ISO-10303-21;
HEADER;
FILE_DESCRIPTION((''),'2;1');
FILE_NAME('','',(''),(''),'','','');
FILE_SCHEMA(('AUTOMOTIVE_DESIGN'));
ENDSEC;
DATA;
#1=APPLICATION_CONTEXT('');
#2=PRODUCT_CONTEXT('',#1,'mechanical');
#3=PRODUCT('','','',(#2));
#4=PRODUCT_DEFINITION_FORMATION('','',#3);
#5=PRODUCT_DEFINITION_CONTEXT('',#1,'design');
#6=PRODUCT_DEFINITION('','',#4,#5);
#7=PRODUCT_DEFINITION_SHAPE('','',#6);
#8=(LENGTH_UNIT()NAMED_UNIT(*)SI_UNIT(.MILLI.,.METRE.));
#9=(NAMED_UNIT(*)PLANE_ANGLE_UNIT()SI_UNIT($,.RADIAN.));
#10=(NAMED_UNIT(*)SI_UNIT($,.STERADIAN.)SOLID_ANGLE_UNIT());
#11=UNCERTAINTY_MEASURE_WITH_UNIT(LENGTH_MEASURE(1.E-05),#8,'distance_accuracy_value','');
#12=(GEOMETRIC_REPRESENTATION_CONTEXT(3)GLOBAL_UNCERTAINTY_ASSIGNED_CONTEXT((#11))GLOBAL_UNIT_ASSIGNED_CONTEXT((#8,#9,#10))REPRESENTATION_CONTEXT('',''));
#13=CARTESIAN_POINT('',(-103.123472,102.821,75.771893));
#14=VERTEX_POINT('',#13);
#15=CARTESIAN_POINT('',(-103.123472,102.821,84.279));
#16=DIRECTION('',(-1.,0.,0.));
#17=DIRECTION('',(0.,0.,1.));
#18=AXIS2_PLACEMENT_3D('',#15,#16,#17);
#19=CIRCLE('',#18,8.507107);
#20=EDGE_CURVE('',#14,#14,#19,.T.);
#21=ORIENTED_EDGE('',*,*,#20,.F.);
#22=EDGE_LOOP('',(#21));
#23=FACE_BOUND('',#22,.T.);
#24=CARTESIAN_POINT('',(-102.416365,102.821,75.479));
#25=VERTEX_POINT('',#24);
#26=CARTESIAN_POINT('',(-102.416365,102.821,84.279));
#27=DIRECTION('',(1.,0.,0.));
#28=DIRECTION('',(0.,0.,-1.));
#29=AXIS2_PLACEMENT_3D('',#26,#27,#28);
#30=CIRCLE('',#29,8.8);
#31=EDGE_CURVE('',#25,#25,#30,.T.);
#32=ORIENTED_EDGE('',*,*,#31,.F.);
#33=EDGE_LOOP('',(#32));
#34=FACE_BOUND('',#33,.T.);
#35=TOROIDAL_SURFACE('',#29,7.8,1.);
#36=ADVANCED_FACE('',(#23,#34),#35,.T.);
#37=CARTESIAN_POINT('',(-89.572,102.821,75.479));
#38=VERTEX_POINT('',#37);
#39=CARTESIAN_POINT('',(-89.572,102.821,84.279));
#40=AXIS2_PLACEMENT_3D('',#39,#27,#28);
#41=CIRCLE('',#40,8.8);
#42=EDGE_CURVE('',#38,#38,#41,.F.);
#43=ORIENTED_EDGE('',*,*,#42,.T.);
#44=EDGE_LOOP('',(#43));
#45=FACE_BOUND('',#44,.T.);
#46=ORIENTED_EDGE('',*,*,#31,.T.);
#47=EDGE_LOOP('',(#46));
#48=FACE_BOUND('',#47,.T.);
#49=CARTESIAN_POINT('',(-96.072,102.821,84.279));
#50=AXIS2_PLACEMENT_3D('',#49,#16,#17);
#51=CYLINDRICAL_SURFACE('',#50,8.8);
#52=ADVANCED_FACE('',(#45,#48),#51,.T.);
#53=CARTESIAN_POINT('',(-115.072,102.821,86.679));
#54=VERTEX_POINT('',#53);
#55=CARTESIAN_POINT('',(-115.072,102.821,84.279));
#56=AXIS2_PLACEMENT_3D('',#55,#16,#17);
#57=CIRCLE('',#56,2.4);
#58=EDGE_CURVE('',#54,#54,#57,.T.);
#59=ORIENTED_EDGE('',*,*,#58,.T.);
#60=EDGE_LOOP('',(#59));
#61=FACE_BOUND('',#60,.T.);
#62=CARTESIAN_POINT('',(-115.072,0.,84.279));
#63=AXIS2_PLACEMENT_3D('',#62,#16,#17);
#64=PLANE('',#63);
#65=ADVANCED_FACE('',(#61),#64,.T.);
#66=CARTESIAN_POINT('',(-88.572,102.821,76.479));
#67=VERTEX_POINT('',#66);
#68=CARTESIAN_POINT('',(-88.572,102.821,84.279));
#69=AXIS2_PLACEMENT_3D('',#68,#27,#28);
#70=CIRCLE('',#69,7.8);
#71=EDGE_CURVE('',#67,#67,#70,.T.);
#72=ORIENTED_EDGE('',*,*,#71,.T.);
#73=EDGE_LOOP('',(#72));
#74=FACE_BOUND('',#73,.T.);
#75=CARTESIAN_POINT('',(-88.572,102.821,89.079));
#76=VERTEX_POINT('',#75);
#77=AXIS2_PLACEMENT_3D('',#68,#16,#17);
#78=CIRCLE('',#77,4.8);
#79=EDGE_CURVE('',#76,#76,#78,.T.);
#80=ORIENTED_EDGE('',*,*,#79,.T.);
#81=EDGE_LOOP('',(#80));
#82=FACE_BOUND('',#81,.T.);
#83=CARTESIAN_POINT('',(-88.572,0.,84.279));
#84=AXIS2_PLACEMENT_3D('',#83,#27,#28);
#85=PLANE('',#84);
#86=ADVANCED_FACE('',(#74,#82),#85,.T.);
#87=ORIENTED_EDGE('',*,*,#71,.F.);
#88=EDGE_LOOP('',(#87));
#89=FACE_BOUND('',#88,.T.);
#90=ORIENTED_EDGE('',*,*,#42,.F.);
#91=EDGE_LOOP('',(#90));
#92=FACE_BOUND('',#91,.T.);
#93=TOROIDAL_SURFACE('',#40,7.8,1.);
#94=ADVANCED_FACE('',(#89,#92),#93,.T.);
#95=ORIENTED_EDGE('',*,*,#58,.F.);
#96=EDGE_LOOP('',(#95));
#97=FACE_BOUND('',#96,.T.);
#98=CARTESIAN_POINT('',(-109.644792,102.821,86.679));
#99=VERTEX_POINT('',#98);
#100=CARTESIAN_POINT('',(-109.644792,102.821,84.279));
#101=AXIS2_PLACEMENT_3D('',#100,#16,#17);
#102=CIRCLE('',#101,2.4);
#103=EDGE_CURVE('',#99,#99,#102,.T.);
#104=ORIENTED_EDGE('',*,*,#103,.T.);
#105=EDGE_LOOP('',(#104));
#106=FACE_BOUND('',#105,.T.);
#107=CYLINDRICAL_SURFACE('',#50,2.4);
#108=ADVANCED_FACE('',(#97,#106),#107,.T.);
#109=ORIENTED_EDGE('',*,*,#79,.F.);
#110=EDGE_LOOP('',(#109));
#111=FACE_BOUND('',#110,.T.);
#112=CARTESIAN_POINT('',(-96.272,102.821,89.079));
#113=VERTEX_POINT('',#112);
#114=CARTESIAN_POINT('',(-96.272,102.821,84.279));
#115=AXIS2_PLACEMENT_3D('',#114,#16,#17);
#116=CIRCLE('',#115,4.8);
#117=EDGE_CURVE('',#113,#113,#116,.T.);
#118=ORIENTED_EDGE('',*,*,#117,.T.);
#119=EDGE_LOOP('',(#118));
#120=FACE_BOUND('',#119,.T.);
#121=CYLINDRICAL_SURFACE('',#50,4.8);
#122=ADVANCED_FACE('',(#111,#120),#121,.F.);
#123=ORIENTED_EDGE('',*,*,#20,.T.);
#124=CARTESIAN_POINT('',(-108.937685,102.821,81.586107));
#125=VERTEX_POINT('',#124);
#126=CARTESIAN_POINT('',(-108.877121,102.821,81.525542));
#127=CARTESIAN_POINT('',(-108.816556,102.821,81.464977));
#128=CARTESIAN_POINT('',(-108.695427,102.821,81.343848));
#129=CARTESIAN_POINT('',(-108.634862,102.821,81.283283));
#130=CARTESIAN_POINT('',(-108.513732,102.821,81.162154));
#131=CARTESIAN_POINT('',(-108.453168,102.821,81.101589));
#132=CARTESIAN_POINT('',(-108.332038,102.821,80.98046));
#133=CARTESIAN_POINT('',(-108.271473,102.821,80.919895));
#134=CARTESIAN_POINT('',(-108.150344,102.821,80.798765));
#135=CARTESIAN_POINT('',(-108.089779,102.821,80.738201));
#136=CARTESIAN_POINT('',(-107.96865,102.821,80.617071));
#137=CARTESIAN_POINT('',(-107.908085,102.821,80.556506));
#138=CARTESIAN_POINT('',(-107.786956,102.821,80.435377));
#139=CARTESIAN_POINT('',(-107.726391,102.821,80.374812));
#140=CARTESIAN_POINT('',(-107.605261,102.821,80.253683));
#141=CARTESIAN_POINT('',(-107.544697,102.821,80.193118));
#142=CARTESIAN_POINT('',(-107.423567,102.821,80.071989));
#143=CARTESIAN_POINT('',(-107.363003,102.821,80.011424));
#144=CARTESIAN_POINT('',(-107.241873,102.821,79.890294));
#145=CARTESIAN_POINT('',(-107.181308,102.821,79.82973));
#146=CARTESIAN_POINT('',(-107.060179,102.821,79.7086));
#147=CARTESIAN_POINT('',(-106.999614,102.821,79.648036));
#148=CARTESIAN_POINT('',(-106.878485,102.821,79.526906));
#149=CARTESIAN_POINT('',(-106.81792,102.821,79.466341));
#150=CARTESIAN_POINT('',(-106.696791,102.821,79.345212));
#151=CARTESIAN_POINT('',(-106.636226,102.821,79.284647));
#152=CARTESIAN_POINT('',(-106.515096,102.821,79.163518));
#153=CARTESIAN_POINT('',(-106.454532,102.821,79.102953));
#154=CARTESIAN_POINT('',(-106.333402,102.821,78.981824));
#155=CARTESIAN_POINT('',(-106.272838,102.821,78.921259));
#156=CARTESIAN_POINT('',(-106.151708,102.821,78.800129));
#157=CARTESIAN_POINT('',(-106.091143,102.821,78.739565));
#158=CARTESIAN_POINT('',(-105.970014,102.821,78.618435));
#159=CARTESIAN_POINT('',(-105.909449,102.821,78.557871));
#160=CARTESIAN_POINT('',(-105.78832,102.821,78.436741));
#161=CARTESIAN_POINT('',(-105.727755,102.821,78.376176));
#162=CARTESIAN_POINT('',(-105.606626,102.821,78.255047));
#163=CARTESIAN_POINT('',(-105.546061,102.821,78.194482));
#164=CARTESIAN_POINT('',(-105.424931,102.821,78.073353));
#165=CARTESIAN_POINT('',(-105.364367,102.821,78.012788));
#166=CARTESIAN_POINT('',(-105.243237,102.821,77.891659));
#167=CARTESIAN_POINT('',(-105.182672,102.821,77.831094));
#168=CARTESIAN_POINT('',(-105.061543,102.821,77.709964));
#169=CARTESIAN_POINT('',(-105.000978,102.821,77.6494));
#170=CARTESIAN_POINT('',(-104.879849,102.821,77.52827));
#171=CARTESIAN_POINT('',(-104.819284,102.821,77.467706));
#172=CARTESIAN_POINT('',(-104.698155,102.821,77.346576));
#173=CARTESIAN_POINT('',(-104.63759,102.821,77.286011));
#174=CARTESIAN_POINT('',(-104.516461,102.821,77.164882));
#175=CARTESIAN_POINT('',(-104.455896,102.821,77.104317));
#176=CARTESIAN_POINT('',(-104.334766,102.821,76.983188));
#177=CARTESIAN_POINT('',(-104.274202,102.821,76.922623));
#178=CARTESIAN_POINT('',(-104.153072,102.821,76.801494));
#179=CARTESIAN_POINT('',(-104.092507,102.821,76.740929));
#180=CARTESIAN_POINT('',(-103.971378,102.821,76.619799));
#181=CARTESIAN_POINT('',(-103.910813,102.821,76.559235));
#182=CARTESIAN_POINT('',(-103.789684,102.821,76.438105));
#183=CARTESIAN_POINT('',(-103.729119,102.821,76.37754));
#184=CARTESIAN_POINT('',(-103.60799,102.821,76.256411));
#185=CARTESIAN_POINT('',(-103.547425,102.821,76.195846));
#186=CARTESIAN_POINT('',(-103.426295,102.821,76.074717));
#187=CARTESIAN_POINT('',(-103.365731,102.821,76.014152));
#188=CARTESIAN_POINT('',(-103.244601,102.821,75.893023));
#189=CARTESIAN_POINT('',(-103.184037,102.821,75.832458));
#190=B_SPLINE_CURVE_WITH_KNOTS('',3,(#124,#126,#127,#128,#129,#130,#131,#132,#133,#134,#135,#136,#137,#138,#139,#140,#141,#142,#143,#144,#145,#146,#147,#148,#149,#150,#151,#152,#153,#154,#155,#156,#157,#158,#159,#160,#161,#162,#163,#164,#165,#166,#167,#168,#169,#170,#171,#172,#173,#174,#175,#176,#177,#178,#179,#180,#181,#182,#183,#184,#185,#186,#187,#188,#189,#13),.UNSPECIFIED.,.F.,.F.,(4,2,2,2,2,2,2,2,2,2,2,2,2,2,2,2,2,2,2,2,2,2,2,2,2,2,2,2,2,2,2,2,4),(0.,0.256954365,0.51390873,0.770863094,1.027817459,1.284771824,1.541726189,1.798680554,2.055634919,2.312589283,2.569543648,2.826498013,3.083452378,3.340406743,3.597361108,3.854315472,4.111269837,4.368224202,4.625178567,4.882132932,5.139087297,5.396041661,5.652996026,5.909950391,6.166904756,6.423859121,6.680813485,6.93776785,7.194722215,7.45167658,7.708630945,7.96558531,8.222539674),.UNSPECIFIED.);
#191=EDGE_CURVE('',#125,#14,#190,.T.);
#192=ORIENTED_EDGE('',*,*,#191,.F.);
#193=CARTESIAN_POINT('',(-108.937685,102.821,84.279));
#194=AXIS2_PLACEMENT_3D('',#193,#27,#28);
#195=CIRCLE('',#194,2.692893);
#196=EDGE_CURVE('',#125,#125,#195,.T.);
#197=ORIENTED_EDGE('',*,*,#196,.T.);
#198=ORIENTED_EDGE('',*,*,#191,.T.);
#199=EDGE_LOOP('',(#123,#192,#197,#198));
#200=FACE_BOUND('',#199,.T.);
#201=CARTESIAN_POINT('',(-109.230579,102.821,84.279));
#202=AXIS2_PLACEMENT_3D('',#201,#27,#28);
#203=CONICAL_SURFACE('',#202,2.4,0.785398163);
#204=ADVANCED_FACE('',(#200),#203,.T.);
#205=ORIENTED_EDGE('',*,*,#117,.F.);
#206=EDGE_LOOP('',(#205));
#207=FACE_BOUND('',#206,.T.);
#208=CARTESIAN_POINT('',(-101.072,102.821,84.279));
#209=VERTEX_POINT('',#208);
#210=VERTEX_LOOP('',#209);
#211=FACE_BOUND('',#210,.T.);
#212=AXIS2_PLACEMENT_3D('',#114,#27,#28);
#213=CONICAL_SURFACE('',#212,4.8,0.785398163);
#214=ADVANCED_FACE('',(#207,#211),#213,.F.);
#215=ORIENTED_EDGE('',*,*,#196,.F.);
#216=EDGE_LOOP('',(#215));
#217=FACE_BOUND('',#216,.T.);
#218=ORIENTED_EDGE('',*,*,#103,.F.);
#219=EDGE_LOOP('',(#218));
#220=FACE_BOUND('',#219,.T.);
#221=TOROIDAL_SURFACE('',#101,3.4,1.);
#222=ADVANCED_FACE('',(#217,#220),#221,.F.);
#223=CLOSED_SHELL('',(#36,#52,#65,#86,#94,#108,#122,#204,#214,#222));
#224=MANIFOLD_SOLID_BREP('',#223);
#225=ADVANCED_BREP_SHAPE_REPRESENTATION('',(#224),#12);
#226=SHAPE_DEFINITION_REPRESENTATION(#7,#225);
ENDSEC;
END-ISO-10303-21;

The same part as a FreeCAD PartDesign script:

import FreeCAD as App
import Part
import Sketcher

V = App.Vector
Q = App.Units.Quantity


def edges_at(feature, points):
    """Names of the edges that pass closest to the given points."""
    edges = feature.Shape.Edges
    near = lambda p: min(range(len(edges)), key=lambda i: edges[i].distToShape(Part.Vertex(*p))[0])
    return sorted({f"Edge{near(p) + 1}" for p in points})

doc = App.newDocument("Part")
params = doc.addObject("Spreadsheet::Sheet", "Params")
for row, (alias, value) in enumerate([
    ("sketch1_width", "14 mm"),
    ("sketch1_height", "4 mm"),
    ("sketch1_width2", "7.7 mm"),
    ("sketch1_width3", "26.5 mm"),
    ("sketch1_height2", "2.4 mm"),
    ("revolution_angle", "360 deg"),
    ("fillet_radius", "1 mm"),
], start=1):
    params.set(f"A{row}", alias)
    params.set(f"B{row}", "=" + value)
    params.setAlias(f"B{row}", alias)

body = doc.addObject("PartDesign::Body", "Body")

# Sketch on XY plane
sketch1 = doc.addObject("Sketcher::SketchObject", "Sketch")
body.addObject(sketch1)
sketch1.AttachmentSupport = (doc.XY_Plane, [""])
sketch1.MapMode = "FlatFace"
sketch1.AttachmentOffset = App.Placement(V(0, 0, 84.279), App.Rotation())
sketch1.addGeometry([
    Part.LineSegment(V(-109.230579, 105.221, 0), V(-115.072, 105.221, 0)),  # 0
    Part.LineSegment(V(-115.072, 105.221, 0), V(-115.072, 102.821, 0)),  # 1
    Part.LineSegment(V(-115.072, 102.821, 0), V(-101.072, 102.821, 0)),  # 2
    Part.LineSegment(V(-101.072, 102.821, 0), V(-96.272, 107.621, 0)),  # 3
    Part.LineSegment(V(-96.272, 107.621, 0), V(-88.572, 107.621, 0)),  # 4
    Part.LineSegment(V(-88.572, 107.621, 0), V(-88.572, 111.621, 0)),  # 5
    Part.LineSegment(V(-88.572, 111.621, 0), V(-102.830579, 111.621, 0)),  # 6
    Part.LineSegment(V(-102.830579, 111.621, 0), V(-109.230579, 105.221, 0)),  # 7
], False)
sketch1.addGeometry(Part.LineSegment(V(-115.072, 102.821, 0), V(-88.572, 102.821, 0)), True)  # axis
sketch1.addConstraint([
    Sketcher.Constraint("Coincident", 0, 2, 1, 1),
    Sketcher.Constraint("Coincident", 1, 2, 2, 1),
    Sketcher.Constraint("Coincident", 2, 2, 3, 1),
    Sketcher.Constraint("Coincident", 3, 2, 4, 1),
    Sketcher.Constraint("Coincident", 4, 2, 5, 1),
    Sketcher.Constraint("Coincident", 5, 2, 6, 1),
    Sketcher.Constraint("Coincident", 6, 2, 7, 1),
    Sketcher.Constraint("Coincident", 7, 2, 0, 1),
    Sketcher.Constraint("Horizontal", 0),
    Sketcher.Constraint("Vertical", 1),
    Sketcher.Constraint("Horizontal", 2),
    Sketcher.Constraint("Horizontal", 4),
    Sketcher.Constraint("Vertical", 5),
    Sketcher.Constraint("Horizontal", 6),
    Sketcher.Constraint("Horizontal", 8),
    Sketcher.Constraint("Coincident", 8, 1, 1, 2),
    Sketcher.Constraint("Parallel", 3, 7),
    Sketcher.Constraint("Vertical", 5, 2, 8, 2),
    Sketcher.Constraint("DistanceX", 2, 1, 2, 2, 14.0),
    Sketcher.Constraint("DistanceY", 5, 1, 5, 2, 4.0),
    Sketcher.Constraint("Angle", 3, Q("45 deg")),
    Sketcher.Constraint("DistanceX", 4, 1, 4, 2, 7.7),
    Sketcher.Constraint("DistanceX", 8, 1, 8, 2, 26.5),
    Sketcher.Constraint("DistanceY", 1, 2, 1, 1, 2.4),
    Sketcher.Constraint("DistanceX", 0, 2, -1, 1, 115.072),
    Sketcher.Constraint("DistanceY", -1, 1, 0, 2, 105.221),
    Sketcher.Constraint("DistanceX", 0, 2, 0, 1, 5.841421),
])
sketch1.setExpression("Constraints[18]", "Params.sketch1_width")
sketch1.setExpression("Constraints[19]", "Params.sketch1_height")
sketch1.setExpression("Constraints[21]", "Params.sketch1_width2")
sketch1.setExpression("Constraints[22]", "Params.sketch1_width3")
sketch1.setExpression("Constraints[23]", "Params.sketch1_height2")
revolution = doc.addObject("PartDesign::Revolution", "Revolution")
body.addObject(revolution)
revolution.Profile = sketch1
revolution.ReferenceAxis = (sketch1, ["Axis0"])
revolution.setExpression("Angle", "Params.revolution_angle")
doc.recompute()

fillet = doc.addObject("PartDesign::Fillet", "Fillet")
body.addObject(fillet)
fillet.Base = (revolution, edges_at(revolution, [(-109.231, 102.821, 81.879), (-102.831, 102.821, 75.479), (-88.572, 102.821, 75.479)]))
fillet.setExpression("Radius", "Params.fillet_radius")

doc.recompute()
